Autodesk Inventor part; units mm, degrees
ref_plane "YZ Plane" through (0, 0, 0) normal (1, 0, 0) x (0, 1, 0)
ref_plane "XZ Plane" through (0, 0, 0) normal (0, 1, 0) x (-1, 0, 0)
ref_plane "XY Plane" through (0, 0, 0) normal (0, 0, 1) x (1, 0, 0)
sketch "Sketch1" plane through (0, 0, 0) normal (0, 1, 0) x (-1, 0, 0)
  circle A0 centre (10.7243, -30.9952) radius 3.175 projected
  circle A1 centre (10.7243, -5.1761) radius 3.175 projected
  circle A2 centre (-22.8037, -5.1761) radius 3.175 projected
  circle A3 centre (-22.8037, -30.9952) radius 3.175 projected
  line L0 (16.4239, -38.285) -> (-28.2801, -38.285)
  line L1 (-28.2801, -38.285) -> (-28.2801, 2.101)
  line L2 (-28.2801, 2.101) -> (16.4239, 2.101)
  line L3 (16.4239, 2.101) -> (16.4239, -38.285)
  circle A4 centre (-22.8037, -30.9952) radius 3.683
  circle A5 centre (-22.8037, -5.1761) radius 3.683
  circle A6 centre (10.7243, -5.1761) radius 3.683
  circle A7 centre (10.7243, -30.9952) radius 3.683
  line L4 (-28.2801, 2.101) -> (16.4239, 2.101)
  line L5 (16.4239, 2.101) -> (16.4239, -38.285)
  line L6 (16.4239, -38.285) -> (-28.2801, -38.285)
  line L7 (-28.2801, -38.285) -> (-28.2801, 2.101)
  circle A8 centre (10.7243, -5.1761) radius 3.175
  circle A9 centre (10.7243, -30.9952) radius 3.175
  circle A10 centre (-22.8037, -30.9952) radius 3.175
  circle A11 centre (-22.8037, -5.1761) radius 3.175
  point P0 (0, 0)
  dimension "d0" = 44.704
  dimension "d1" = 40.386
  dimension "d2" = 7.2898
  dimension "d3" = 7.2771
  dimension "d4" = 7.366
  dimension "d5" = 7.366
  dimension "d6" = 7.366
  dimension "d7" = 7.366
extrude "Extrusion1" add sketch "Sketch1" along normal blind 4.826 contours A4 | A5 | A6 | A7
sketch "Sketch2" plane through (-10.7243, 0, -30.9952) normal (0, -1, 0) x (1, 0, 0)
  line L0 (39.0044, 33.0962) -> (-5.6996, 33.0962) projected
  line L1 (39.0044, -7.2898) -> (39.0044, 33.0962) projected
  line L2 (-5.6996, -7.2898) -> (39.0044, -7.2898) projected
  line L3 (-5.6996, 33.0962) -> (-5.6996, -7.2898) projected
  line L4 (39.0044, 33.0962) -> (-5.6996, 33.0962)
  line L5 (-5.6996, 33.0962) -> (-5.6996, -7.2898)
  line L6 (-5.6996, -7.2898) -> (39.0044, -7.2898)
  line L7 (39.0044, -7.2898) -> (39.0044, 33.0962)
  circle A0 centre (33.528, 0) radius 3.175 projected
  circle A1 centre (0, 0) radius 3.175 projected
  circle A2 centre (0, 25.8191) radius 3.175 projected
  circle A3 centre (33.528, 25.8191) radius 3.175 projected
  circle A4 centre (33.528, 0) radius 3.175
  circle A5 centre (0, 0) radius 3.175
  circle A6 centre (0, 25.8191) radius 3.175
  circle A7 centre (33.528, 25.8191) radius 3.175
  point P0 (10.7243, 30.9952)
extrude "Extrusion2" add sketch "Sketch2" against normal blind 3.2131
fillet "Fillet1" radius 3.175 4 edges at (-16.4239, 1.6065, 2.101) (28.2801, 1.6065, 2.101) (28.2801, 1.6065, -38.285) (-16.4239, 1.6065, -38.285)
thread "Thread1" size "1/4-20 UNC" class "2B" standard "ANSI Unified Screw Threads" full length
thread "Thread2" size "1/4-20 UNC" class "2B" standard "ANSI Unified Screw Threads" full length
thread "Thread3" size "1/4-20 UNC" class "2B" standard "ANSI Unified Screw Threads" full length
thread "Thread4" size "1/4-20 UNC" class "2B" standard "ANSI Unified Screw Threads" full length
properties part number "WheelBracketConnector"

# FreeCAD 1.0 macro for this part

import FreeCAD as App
import Part
import Sketcher

V = App.Vector
Q = App.Units.Quantity


def edges_at(feature, points):
    """Names of the edges that pass closest to the given points."""
    edges = feature.Shape.Edges
    near = lambda p: min(range(len(edges)), key=lambda i: edges[i].distToShape(Part.Vertex(*p))[0])
    return sorted({f"Edge{near(p) + 1}" for p in points})


def add_polygon(sketch, points):
    """Adds a closed chain of lines whose ends are joined by coincident constraints."""
    first, n = sketch.GeometryCount, len(points)
    for a, b in zip(points, points[1:] + points[:1]):
        sketch.addGeometry(Part.LineSegment(App.Vector(*a, 0), App.Vector(*b, 0)), False)
    for i in range(n):
        sketch.addConstraint(Sketcher.Constraint("Coincident", first + i, 2, first + (i + 1) % n, 1))

doc = App.newDocument("Part")
params = doc.addObject("Spreadsheet::Sheet", "Params")
for row, (alias, value) in enumerate([
    ("sketch1_diameter", "0.29 in"),
    ("sketch1_diameter2", "0.25 in"),
    ("pad1_length", "0.19 in"),
    ("sketch2_diameter", "0.25 in"),
    ("sketch2_width", "1.76 in"),
    ("sketch2_height", "1.59 in"),
    ("pad2_length", "0.1265 in"),
    ("fillet_radius", "0.125 in"),
], start=1):
    params.set(f"A{row}", alias)
    params.set(f"B{row}", "=" + value)
    params.setAlias(f"B{row}", alias)

body = doc.addObject("PartDesign::Body", "Body")
body.AllowCompound = True

# Sketch on XZ plane
sketch1 = body.newObject("Sketcher::SketchObject", "Sketch")
sketch1.AttachmentSupport = (doc.getObject("XZ_Plane"), [""])
sketch1.MapMode = "FlatFace"
sketch1.addGeometry([
    Part.Circle(V(22.8, -31, 0), V(0, 0, 1), 3.7),  # 0
    Part.Circle(V(22.8, -31, 0), V(0, 0, 1), 3.2),  # 1
    Part.Circle(V(22.8, -5.2, 0), V(0, 0, 1), 3.7),  # 2
    Part.Circle(V(22.8, -5.2, 0), V(0, 0, 1), 3.2),  # 3
    Part.Circle(V(-10.7, -5.2, 0), V(0, 0, 1), 3.7),  # 4
    Part.Circle(V(-10.7, -5.2, 0), V(0, 0, 1), 3.2),  # 5
    Part.Circle(V(-10.7, -31, 0), V(0, 0, 1), 3.7),  # 6
    Part.Circle(V(-10.7, -31, 0), V(0, 0, 1), 3.2),  # 7
], False)
sketch1.addConstraint([
    Sketcher.Constraint("Coincident", 1, 3, 0, 3),
    Sketcher.Constraint("Coincident", 3, 3, 2, 3),
    Sketcher.Constraint("Coincident", 5, 3, 4, 3),
    Sketcher.Constraint("Coincident", 7, 3, 6, 3),
    Sketcher.Constraint("Equal", 0, 2),
    Sketcher.Constraint("Equal", 1, 3),
    Sketcher.Constraint("Equal", 2, 4),
    Sketcher.Constraint("Equal", 3, 5),
    Sketcher.Constraint("Equal", 4, 6),
    Sketcher.Constraint("Equal", 5, 7),
    Sketcher.Constraint("Horizontal", 3, 3, 4, 3),
    Sketcher.Constraint("Horizontal", 1, 3, 6, 3),
    Sketcher.Constraint("Vertical", 1, 3, 2, 3),
    Sketcher.Constraint("Vertical", 5, 3, 6, 3),
    Sketcher.Constraint("Diameter", 0, Q("0.29 in")),
    Sketcher.Constraint("Diameter", 1, Q("0.25 in")),
    Sketcher.Constraint("DistanceX", 4, 3, 2, 3, Q("1.32 in")),
    Sketcher.Constraint("DistanceY", 0, 3, 2, 3, Q("1.0165 in")),
    Sketcher.Constraint("DistanceX", -1, 1, 0, 3, 22.8037),
    Sketcher.Constraint("DistanceY", 0, 3, -1, 1, 30.9952),
])
sketch1.setExpression("Constraints[14]", "Params.sketch1_diameter")
sketch1.setExpression("Constraints[15]", "Params.sketch1_diameter2")
pad1 = body.newObject("PartDesign::Pad", "Pad")
pad1.Profile = sketch1
pad1.setExpression("Length", "Params.pad1_length")
pad1.Reversed = True

# Sketch on XZ plane
sketch2 = body.newObject("Sketcher::SketchObject", "Sketch001")
sketch2.AttachmentSupport = (doc.getObject("XZ_Plane"), [""])
sketch2.MapMode = "FlatFace"
add_polygon(sketch2, [(28.3, -38.3), (28.3, 2.1), (-16.4, 2.1), (-16.4, -38.3)])  # lines 0-3
sketch2.addGeometry(Part.Circle(V(-10.7, -31, 0), V(0, 0, 1), 3.2), False)  # 4
sketch2.addGeometry(Part.Circle(V(22.8, -31, 0), V(0, 0, 1), 3.2), False)  # 5
sketch2.addGeometry(Part.Circle(V(-10.7, -5.2, 0), V(0, 0, 1), 3.2), False)  # 6
sketch2.addGeometry(Part.Circle(V(22.8, -5.2, 0), V(0, 0, 1), 3.2), False)  # 7
sketch2.addConstraint([
    Sketcher.Constraint("Vertical", 0),
    Sketcher.Constraint("Horizontal", 1),
    Sketcher.Constraint("Vertical", 2),
    Sketcher.Constraint("Horizontal", 3),
    Sketcher.Constraint("Equal", 4, 5),
    Sketcher.Constraint("Equal", 5, 6),
    Sketcher.Constraint("Equal", 6, 7),
    Sketcher.Constraint("Horizontal", 4, 3, 5, 3),
    Sketcher.Constraint("Horizontal", 6, 3, 7, 3),
    Sketcher.Constraint("Vertical", 4, 3, 6, 3),
    Sketcher.Constraint("Vertical", 5, 3, 7, 3),
    Sketcher.Constraint("Diameter", 4, Q("0.25 in")),
    Sketcher.Constraint("DistanceX", 1, 2, 1, 1, Q("1.76 in")),
    Sketcher.Constraint("DistanceY", 0, 1, 0, 2, Q("1.59 in")),
    Sketcher.Constraint("DistanceX", 4, 3, 5, 3, Q("1.32 in")),
    Sketcher.Constraint("DistanceY", 5, 3, 0, 2, Q("1.303 in")),
    Sketcher.Constraint("DistanceX", -1, 1, 0, 2, Q("1.1134 in")),
    Sketcher.Constraint("DistanceY", 4, 3, 6, 3, Q("1.0165 in")),
    Sketcher.Constraint("DistanceX", 7, 3, 0, 2, Q("0.2156 in")),
    Sketcher.Constraint("DistanceY", 4, 3, -1, 1, 30.9952),
])
sketch2.setExpression("Constraints[15]", "Params.sketch2_diameter")
sketch2.setExpression("Constraints[16]", "Params.sketch2_width")
sketch2.setExpression("Constraints[17]", "Params.sketch2_height")
pad2 = body.newObject("PartDesign::Pad", "Pad001")
pad2.Profile = sketch2
pad2.setExpression("Length", "Params.pad2_length")
pad2.Reversed = True
doc.recompute()

fillet = body.newObject("PartDesign::Fillet", "Fillet")
fillet.Base = (pad2, edges_at(pad2, [
    (-16.424, 1.607, 2.101),
    (28.28, 1.607, 2.101),
    (28.28, 1.607, -38.285),
    (-16.424, 1.607, -38.285),
]))
fillet.setExpression("Radius", "Params.fillet_radius")

doc.recompute()
